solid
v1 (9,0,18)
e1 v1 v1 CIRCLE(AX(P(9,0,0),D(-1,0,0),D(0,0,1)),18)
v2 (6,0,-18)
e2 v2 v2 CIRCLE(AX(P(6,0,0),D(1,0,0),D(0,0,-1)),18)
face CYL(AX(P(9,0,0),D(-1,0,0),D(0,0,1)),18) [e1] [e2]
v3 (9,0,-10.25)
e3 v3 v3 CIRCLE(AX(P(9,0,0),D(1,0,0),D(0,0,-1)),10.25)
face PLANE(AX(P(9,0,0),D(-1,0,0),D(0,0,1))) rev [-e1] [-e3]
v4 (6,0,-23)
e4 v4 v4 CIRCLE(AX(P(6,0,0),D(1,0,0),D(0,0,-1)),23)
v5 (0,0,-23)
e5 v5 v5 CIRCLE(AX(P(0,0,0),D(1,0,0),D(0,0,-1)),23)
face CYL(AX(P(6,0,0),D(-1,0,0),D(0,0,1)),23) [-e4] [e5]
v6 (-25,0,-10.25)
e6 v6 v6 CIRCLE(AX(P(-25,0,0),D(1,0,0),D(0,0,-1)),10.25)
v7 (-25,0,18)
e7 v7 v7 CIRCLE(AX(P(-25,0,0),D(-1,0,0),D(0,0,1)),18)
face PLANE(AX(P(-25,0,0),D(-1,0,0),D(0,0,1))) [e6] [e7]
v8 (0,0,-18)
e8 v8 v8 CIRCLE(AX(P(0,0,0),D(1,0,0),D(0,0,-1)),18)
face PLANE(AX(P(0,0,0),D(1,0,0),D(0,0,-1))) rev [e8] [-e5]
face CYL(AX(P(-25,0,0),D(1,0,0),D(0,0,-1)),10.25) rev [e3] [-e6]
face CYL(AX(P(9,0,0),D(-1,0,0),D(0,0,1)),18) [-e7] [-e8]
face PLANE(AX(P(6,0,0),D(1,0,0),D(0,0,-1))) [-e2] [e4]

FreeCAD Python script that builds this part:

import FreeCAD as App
import Part
import Sketcher
from FreeCAD import Vector
Q = App.Units.Quantity

doc = App.newDocument("Part")
body = doc.addObject("PartDesign::Body", "Body")

# Sketch on YZ plane
sketch1 = doc.addObject("Sketcher::SketchObject", "Sketch")
body.addObject(sketch1)
sketch1.AttachmentSupport = (doc.YZ_Plane, [""])
sketch1.MapMode = "FlatFace"
sketch1.addGeometry(Part.Circle(Vector(0, 0, 0), Vector(0, 0, 1), 23), False)
sketch1.addConstraint([
    Sketcher.Constraint("Coincident", 0, 3, -1, 1),
    Sketcher.Constraint("Diameter", 0, Q("46 mm")),
])
pad1 = doc.addObject("PartDesign::Pad", "Pad")
body.addObject(pad1)
pad1.Profile = sketch1
pad1.Length = 6

# Sketch on YZ plane
sketch2 = doc.addObject("Sketcher::SketchObject", "Sketch001")
body.addObject(sketch2)
sketch2.AttachmentSupport = (doc.YZ_Plane, [""])
sketch2.MapMode = "FlatFace"
sketch2.addGeometry(Part.Circle(Vector(0, 0, 0), Vector(0, 0, 1), 18), False)
sketch2.addConstraint([
    Sketcher.Constraint("Coincident", 0, 3, -1, 1),
    Sketcher.Constraint("Diameter", 0, Q("36 mm")),
])
pad2 = doc.addObject("PartDesign::Pad", "Pad001")
body.addObject(pad2)
pad2.Profile = sketch2
pad2.Type = "TwoLengths"
pad2.Length = 25
pad2.Length2 = 9
pad2.Reversed = True

# Sketch on YZ plane
sketch3 = doc.addObject("Sketcher::SketchObject", "Sketch002")
body.addObject(sketch3)
sketch3.AttachmentSupport = (doc.YZ_Plane, [""])
sketch3.MapMode = "FlatFace"
sketch3.AttachmentOffset = App.Placement(Vector(0, 0, 9), App.Rotation())
sketch3.addGeometry(Part.Circle(Vector(0, 0, 0), Vector(0, 0, 1), 10.25), False)
sketch3.addConstraint([
    Sketcher.Constraint("Coincident", 0, 3, -1, 1),
    Sketcher.Constraint("Diameter", 0, Q("20.5 mm")),
])
pocket1 = doc.addObject("PartDesign::Pocket", "Pocket")
body.addObject(pocket1)
pocket1.Profile = sketch3
pocket1.Type = "ThroughAll"

doc.recompute()
